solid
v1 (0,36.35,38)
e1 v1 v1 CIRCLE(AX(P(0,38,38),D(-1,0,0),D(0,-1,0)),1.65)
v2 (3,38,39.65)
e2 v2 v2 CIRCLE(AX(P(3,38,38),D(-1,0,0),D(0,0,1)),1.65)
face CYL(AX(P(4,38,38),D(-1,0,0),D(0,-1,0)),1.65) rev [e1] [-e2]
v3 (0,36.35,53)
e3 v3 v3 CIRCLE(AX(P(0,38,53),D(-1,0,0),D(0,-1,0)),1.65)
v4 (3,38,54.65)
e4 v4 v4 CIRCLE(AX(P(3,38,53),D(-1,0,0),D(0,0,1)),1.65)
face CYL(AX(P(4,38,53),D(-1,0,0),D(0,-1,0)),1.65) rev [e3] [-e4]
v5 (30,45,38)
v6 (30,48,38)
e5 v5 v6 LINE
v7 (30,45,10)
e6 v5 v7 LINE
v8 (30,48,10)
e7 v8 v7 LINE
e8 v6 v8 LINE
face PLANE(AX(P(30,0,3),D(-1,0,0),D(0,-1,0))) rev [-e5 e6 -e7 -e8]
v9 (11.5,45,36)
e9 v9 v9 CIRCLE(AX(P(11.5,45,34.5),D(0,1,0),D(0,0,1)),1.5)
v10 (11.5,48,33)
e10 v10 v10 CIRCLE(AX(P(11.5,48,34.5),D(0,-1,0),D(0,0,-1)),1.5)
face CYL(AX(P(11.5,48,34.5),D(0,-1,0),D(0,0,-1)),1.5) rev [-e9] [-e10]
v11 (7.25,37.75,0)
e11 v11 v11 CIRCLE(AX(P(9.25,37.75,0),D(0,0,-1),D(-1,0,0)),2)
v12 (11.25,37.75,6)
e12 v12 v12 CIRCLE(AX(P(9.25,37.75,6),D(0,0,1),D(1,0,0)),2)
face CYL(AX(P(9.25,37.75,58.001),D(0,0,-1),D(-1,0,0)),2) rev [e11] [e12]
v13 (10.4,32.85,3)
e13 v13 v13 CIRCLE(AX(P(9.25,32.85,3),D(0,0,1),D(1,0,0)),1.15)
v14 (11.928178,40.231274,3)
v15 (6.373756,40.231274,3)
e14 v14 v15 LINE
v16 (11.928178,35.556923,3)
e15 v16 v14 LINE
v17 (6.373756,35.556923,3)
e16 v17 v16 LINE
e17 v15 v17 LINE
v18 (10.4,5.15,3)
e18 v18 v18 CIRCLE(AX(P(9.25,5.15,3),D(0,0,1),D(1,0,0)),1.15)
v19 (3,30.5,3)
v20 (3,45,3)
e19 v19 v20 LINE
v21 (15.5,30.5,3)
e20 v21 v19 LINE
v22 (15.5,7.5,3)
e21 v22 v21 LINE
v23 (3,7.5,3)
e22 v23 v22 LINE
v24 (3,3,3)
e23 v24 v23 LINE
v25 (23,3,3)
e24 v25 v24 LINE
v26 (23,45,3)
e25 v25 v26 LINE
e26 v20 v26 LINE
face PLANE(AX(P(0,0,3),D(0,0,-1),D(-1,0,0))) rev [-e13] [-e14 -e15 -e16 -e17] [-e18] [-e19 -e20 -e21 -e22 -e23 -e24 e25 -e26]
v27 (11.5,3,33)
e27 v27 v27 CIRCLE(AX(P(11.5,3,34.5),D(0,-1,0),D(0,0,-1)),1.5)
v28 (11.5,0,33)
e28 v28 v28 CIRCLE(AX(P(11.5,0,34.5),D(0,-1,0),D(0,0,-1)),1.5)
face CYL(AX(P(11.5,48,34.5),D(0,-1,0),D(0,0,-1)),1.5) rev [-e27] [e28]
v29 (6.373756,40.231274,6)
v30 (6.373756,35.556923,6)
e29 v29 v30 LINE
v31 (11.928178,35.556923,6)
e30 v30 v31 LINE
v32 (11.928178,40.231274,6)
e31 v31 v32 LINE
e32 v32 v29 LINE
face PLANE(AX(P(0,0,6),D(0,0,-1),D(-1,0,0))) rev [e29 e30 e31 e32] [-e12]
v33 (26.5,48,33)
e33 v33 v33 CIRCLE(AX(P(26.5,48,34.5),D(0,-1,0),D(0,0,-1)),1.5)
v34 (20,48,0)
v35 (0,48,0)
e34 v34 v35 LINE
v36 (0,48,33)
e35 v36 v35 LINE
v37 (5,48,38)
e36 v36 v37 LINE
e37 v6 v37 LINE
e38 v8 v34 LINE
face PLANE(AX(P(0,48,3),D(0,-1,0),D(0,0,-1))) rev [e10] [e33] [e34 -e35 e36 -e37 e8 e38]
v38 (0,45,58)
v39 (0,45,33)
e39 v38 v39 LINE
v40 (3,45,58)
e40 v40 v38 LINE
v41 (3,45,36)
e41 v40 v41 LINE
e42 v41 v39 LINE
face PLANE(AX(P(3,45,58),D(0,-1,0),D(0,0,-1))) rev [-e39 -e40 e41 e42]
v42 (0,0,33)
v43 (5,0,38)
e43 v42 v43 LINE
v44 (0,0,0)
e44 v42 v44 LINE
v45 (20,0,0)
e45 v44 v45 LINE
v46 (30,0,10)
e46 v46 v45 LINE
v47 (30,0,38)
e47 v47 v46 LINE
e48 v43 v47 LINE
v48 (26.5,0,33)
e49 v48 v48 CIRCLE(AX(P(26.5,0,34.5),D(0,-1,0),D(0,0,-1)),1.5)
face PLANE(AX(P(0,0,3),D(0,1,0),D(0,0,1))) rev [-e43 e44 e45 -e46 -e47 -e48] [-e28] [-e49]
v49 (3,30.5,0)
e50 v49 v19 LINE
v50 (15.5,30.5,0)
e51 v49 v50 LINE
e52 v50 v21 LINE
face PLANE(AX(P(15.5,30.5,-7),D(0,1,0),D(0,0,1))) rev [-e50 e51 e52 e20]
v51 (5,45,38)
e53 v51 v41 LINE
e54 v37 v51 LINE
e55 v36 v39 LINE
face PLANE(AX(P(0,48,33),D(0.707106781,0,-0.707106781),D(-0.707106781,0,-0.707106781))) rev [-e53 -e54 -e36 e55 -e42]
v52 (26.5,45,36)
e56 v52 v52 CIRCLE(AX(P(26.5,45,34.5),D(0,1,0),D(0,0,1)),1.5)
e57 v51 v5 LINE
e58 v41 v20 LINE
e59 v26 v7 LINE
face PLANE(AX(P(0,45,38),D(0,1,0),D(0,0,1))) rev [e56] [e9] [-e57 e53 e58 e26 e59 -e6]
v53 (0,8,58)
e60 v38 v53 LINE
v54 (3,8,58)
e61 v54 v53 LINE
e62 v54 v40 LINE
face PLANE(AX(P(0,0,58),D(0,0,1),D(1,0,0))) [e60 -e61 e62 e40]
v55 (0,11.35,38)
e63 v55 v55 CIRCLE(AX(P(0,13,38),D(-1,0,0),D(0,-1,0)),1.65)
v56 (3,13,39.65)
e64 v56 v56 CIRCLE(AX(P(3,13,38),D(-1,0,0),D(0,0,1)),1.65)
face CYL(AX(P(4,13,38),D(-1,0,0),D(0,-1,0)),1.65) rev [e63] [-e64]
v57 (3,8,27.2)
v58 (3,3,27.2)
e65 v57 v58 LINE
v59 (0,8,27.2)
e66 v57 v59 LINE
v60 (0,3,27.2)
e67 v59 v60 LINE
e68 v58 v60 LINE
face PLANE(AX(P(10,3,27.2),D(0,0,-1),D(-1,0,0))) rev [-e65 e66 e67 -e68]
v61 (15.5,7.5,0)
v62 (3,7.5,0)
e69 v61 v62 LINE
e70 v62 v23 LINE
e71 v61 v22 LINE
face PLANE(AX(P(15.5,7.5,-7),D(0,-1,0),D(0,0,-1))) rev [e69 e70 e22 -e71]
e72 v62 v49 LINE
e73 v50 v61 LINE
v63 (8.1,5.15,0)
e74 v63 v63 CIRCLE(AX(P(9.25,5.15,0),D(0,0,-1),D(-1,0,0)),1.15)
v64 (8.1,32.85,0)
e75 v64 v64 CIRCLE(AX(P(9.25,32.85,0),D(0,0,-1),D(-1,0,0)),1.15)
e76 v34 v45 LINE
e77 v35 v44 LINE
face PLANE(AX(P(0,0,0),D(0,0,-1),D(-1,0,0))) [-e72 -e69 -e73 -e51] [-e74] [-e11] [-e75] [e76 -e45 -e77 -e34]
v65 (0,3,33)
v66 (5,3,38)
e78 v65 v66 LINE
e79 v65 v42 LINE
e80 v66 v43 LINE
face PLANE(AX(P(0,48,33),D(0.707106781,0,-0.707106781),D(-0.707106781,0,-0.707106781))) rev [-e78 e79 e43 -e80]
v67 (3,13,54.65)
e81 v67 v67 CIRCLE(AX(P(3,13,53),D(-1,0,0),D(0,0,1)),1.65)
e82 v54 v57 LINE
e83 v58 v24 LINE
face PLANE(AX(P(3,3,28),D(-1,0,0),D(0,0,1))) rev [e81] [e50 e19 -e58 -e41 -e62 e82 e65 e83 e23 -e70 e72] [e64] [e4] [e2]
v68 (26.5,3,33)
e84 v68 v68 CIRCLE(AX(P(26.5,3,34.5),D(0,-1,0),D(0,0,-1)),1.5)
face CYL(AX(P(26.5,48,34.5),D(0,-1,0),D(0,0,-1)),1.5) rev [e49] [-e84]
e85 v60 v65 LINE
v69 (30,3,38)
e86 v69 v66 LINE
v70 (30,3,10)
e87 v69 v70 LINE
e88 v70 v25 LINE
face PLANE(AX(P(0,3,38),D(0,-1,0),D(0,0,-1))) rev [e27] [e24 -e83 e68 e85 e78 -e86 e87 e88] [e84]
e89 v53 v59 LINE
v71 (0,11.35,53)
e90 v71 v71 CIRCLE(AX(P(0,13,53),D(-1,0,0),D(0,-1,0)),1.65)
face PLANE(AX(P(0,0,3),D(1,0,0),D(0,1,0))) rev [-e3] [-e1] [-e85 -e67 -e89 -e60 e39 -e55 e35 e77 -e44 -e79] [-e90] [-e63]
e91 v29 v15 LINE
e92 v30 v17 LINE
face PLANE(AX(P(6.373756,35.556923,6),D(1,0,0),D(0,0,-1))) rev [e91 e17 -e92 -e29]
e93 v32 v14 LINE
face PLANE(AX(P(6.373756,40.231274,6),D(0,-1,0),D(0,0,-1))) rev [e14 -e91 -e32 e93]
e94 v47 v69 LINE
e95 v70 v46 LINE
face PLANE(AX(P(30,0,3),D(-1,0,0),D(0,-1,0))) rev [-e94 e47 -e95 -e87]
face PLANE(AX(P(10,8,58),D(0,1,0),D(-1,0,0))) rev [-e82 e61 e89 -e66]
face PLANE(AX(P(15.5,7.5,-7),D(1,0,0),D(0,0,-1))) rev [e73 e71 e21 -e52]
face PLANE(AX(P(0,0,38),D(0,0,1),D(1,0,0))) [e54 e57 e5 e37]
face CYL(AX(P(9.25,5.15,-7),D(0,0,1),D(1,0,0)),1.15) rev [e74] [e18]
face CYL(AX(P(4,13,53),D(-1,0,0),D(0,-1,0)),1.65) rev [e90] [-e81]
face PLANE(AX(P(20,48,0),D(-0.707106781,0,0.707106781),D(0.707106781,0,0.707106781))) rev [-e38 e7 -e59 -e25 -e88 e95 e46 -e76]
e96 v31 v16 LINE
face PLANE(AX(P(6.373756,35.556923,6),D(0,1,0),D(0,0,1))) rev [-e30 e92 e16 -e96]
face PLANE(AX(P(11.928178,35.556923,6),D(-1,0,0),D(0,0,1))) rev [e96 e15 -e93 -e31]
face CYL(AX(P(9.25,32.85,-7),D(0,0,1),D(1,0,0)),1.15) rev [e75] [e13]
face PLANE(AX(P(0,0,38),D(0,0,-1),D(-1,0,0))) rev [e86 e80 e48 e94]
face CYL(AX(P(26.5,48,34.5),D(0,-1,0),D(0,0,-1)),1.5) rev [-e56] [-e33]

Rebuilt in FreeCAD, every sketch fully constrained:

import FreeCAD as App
import Part
import Sketcher

V = App.Vector
Q = App.Units.Quantity

doc = App.newDocument("Part")
body = doc.addObject("PartDesign::Body", "Body")

# Sketch on XY plane
sketch1 = body.newObject("Sketcher::SketchObject", "Sketch")
sketch1.AttachmentSupport = (doc.getObject("XY_Plane"), [""])
sketch1.MapMode = "FlatFace"
sketch1.addGeometry([
    Part.LineSegment(V(0, 48, 0), V(0, 0, 0)),
    Part.LineSegment(V(0, 0, 0), V(30, 0, 0)),
    Part.LineSegment(V(30, 0, 0), V(30, 48, 0)),
    Part.LineSegment(V(30, 48, 0), V(0, 48, 0)),
], False)
sketch1.addConstraint([
    Sketcher.Constraint("Coincident", 0, 2, 1, 1),
    Sketcher.Constraint("Coincident", 1, 2, 2, 1),
    Sketcher.Constraint("Coincident", 2, 2, 3, 1),
    Sketcher.Constraint("Coincident", 3, 2, 0, 1),
    Sketcher.Constraint("Vertical", 0),
    Sketcher.Constraint("Horizontal", 1),
    Sketcher.Constraint("Vertical", 2),
    Sketcher.Constraint("Horizontal", 3),
    Sketcher.Constraint("Coincident", 0, 2, -1, 1),
    Sketcher.Constraint("DistanceX", 1, 1, 1, 2, Q("30 mm")),
    Sketcher.Constraint("DistanceY", 0, 2, 0, 1, Q("48 mm")),
])
pad1 = body.newObject("PartDesign::Pad", "Pad")
pad1.Profile = sketch1
pad1.Length = 3

# Sketch on XY plane
sketch2 = body.newObject("Sketcher::SketchObject", "Sketch001")
sketch2.AttachmentSupport = (doc.getObject("XY_Plane"), [""])
sketch2.MapMode = "FlatFace"
sketch2.AttachmentOffset = App.Placement(V(0, 0, 3), App.Rotation())
sketch2.addGeometry([
    Part.LineSegment(V(0, 48, 0), V(0, 45, 0)),  # 0
    Part.LineSegment(V(0, 45, 0), V(30, 45, 0)),  # 1
    Part.LineSegment(V(30, 45, 0), V(30, 48, 0)),  # 2
    Part.LineSegment(V(30, 48, 0), V(0, 48, 0)),  # 3
    Part.LineSegment(V(0, 3, 0), V(0, 0, 0)),  # 4
    Part.LineSegment(V(0, 0, 0), V(30, 0, 0)),  # 5
    Part.LineSegment(V(30, 0, 0), V(30, 3, 0)),  # 6
    Part.LineSegment(V(30, 3, 0), V(0, 3, 0)),  # 7
], False)
sketch2.addConstraint([
    Sketcher.Constraint("Coincident", 0, 2, 1, 1),
    Sketcher.Constraint("Coincident", 1, 2, 2, 1),
    Sketcher.Constraint("Coincident", 2, 2, 3, 1),
    Sketcher.Constraint("Coincident", 3, 2, 0, 1),
    Sketcher.Constraint("Coincident", 4, 2, 5, 1),
    Sketcher.Constraint("Coincident", 5, 2, 6, 1),
    Sketcher.Constraint("Coincident", 6, 2, 7, 1),
    Sketcher.Constraint("Coincident", 7, 2, 4, 1),
    Sketcher.Constraint("Vertical", 0),
    Sketcher.Constraint("Horizontal", 1),
    Sketcher.Constraint("Vertical", 2),
    Sketcher.Constraint("Horizontal", 3),
    Sketcher.Constraint("Vertical", 4),
    Sketcher.Constraint("Horizontal", 5),
    Sketcher.Constraint("Vertical", 6),
    Sketcher.Constraint("Horizontal", 7),
    Sketcher.Constraint("Coincident", 4, 2, -1, 1),
    Sketcher.Constraint("PointOnObject", 0, 2, -2),
    Sketcher.Constraint("Vertical", 2, 2, 5, 2),
    Sketcher.Constraint("Equal", 2, 4),
    Sketcher.Constraint("DistanceX", 1, 1, 1, 2, Q("30 mm")),
    Sketcher.Constraint("DistanceY", 0, 2, 0, 1, Q("3 mm")),
    Sketcher.Constraint("DistanceY", -1, 1, 0, 2, Q("45 mm")),
])
pad2 = body.newObject("PartDesign::Pad", "Pad001")
pad2.Profile = sketch2
pad2.Length = 35

# Sketch on XZ plane
sketch3 = body.newObject("Sketcher::SketchObject", "Sketch002")
sketch3.AttachmentSupport = (doc.getObject("XZ_Plane"), [""])
sketch3.MapMode = "FlatFace"
sketch3.addGeometry([
    Part.LineSegment(V(0, 33, 0), V(5, 38, 0)),
    Part.LineSegment(V(5, 38, 0), V(0, 38, 0)),
    Part.LineSegment(V(0, 38, 0), V(0, 33, 0)),
], False)
sketch3.addConstraint([
    Sketcher.Constraint("Coincident", 0, 2, 1, 1),
    Sketcher.Constraint("Coincident", 1, 2, 2, 1),
    Sketcher.Constraint("Coincident", 2, 2, 0, 1),
    Sketcher.Constraint("Horizontal", 1),
    Sketcher.Constraint("Vertical", 2),
    Sketcher.Constraint("PointOnObject", 1, 2, -2),
    Sketcher.Constraint("Equal", 1, 2),
    Sketcher.Constraint("DistanceX", 1, 2, 1, 1, Q("5 mm")),
    Sketcher.Constraint("DistanceY", -1, 1, 0, 2, Q("38 mm")),
])
pocket1 = body.newObject("PartDesign::Pocket", "Pocket")
pocket1.Profile = sketch3
pocket1.Type = "ThroughAll"

# Sketch on XZ plane
sketch4 = body.newObject("Sketcher::SketchObject", "Sketch003")
sketch4.AttachmentSupport = (doc.getObject("XZ_Plane"), [""])
sketch4.MapMode = "FlatFace"
sketch4.addGeometry([
    Part.LineSegment(V(30, 10, 0), V(20, 0, 0)),
    Part.LineSegment(V(20, 0, 0), V(30, 0, 0)),
    Part.LineSegment(V(30, 0, 0), V(30, 10, 0)),
], False)
sketch4.addConstraint([
    Sketcher.Constraint("Coincident", 0, 2, 1, 1),
    Sketcher.Constraint("Coincident", 1, 2, 2, 1),
    Sketcher.Constraint("Coincident", 2, 2, 0, 1),
    Sketcher.Constraint("Horizontal", 1),
    Sketcher.Constraint("Vertical", 2),
    Sketcher.Constraint("PointOnObject", 0, 2, -1),
    Sketcher.Constraint("Equal", 1, 2),
    Sketcher.Constraint("DistanceX", 1, 1, 1, 2, Q("10 mm")),
    Sketcher.Constraint("DistanceX", -1, 1, 0, 2, Q("20 mm")),
])
pocket2 = body.newObject("PartDesign::Pocket", "Pocket001")
pocket2.Profile = sketch4
pocket2.Type = "ThroughAll"

# Sketch on XY plane
sketch5 = body.newObject("Sketcher::SketchObject", "Sketch004")
sketch5.AttachmentSupport = (doc.getObject("XY_Plane"), [""])
sketch5.MapMode = "FlatFace"
sketch5.AttachmentOffset = App.Placement(V(0, 0, 3), App.Rotation())
sketch5.addGeometry([
    Part.LineSegment(V(0, 45, 0), V(0, 3, 0)),
    Part.LineSegment(V(0, 3, 0), V(3, 3, 0)),
    Part.LineSegment(V(3, 3, 0), V(3, 45, 0)),
    Part.LineSegment(V(3, 45, 0), V(0, 45, 0)),
], False)
sketch5.addConstraint([
    Sketcher.Constraint("Coincident", 0, 2, 1, 1),
    Sketcher.Constraint("Coincident", 1, 2, 2, 1),
    Sketcher.Constraint("Coincident", 2, 2, 3, 1),
    Sketcher.Constraint("Coincident", 3, 2, 0, 1),
    Sketcher.Constraint("Vertical", 0),
    Sketcher.Constraint("Horizontal", 1),
    Sketcher.Constraint("Vertical", 2),
    Sketcher.Constraint("Horizontal", 3),
    Sketcher.Constraint("PointOnObject", 0, 2, -2),
    Sketcher.Constraint("DistanceX", 1, 1, 1, 2, Q("3 mm")),
    Sketcher.Constraint("DistanceY", 0, 2, 0, 1, Q("42 mm")),
    Sketcher.Constraint("DistanceY", -1, 1, 0, 2, Q("3 mm")),
])
pad3 = body.newObject("PartDesign::Pad", "Pad002")
pad3.Profile = sketch5
pad3.Length = 25

# Sketch on XY plane
sketch6 = body.newObject("Sketcher::SketchObject", "Sketch005")
sketch6.AttachmentSupport = (doc.getObject("XY_Plane"), [""])
sketch6.MapMode = "FlatFace"
sketch6.AttachmentOffset = App.Placement(V(0, 0, 28), App.Rotation())
sketch6.addGeometry([
    Part.LineSegment(V(0, 45, 0), V(0, 3, 0)),
    Part.LineSegment(V(0, 3, 0), V(3, 3, 0)),
    Part.LineSegment(V(3, 3, 0), V(3, 45, 0)),
    Part.LineSegment(V(3, 45, 0), V(0, 45, 0)),
], False)
sketch6.addConstraint([
    Sketcher.Constraint("Coincident", 0, 2, 1, 1),
    Sketcher.Constraint("Coincident", 1, 2, 2, 1),
    Sketcher.Constraint("Coincident", 2, 2, 3, 1),
    Sketcher.Constraint("Coincident", 3, 2, 0, 1),
    Sketcher.Constraint("Vertical", 0),
    Sketcher.Constraint("Horizontal", 1),
    Sketcher.Constraint("Vertical", 2),
    Sketcher.Constraint("Horizontal", 3),
    Sketcher.Constraint("PointOnObject", 0, 2, -2),
    Sketcher.Constraint("DistanceX", 1, 1, 1, 2, Q("3 mm")),
    Sketcher.Constraint("DistanceY", 0, 2, 0, 1, Q("42 mm")),
    Sketcher.Constraint("DistanceY", -1, 1, 0, 2, Q("3 mm")),
])
pad4 = body.newObject("PartDesign::Pad", "Pad003")
pad4.Profile = sketch6
pad4.Length = 30

# Sketch on YZ plane
sketch7 = body.newObject("Sketcher::SketchObject", "Sketch006")
sketch7.AttachmentSupport = (doc.getObject("YZ_Plane"), [""])
sketch7.MapMode = "FlatFace"
sketch7.addGeometry([
    Part.Circle(V(13, 38, 0), V(0, 0, 1), 1.6),
    Part.Circle(V(38, 38, 0), V(0, 0, 1), 1.6),
    Part.Circle(V(38, 53, 0), V(0, 0, 1), 1.6),
    Part.Circle(V(13, 53, 0), V(0, 0, 1), 1.6),
], False)
sketch7.addConstraint([
    Sketcher.Constraint("Equal", 0, 1),
    Sketcher.Constraint("Equal", 1, 2),
    Sketcher.Constraint("Equal", 2, 3),
    Sketcher.Constraint("Horizontal", 0, 3, 1, 3),
    Sketcher.Constraint("Horizontal", 2, 3, 3, 3),
    Sketcher.Constraint("Vertical", 1, 3, 2, 3),
    Sketcher.Constraint("Vertical", 0, 3, 3, 3),
    Sketcher.Constraint("Diameter", 0, Q("3.3 mm")),
    Sketcher.Constraint("DistanceX", -1, 1, 0, 3, Q("13 mm")),
    Sketcher.Constraint("DistanceY", -1, 1, 0, 3, Q("38 mm")),
    Sketcher.Constraint("DistanceX", -1, 1, 1, 3, Q("38 mm")),
    Sketcher.Constraint("DistanceY", -1, 1, 2, 3, Q("53 mm")),
])
pocket3 = body.newObject("PartDesign::Pocket", "Pocket002")
pocket3.Profile = sketch7
pocket3.Length = 4
pocket3.Reversed = True

# Sketch on XY plane
sketch8 = body.newObject("Sketcher::SketchObject", "Sketch007")
sketch8.AttachmentSupport = (doc.getObject("XY_Plane"), [""])
sketch8.MapMode = "FlatFace"
sketch8.AttachmentOffset = App.Placement(V(0, 0, 3), App.Rotation())
sketch8.addGeometry([
    Part.Circle(V(9.2, 32.9, 0), V(0, 0, 1), 1.1),  # 0
    Part.Circle(V(9.2, 5.2, 0), V(0, 0, 1), 1.1),  # 1
    Part.LineSegment(V(3, 30.5, 0), V(3, 7.5, 0)),  # 2
    Part.LineSegment(V(3, 7.5, 0), V(15.5, 7.5, 0)),  # 3
    Part.LineSegment(V(15.5, 7.5, 0), V(15.5, 30.5, 0)),  # 4
    Part.LineSegment(V(15.5, 30.5, 0), V(3, 30.5, 0)),  # 5
], False)
sketch8.addConstraint([
    Sketcher.Constraint("Coincident", 2, 2, 3, 1),
    Sketcher.Constraint("Coincident", 3, 2, 4, 1),
    Sketcher.Constraint("Coincident", 4, 2, 5, 1),
    Sketcher.Constraint("Coincident", 5, 2, 2, 1),
    Sketcher.Constraint("Vertical", 2),
    Sketcher.Constraint("Horizontal", 3),
    Sketcher.Constraint("Vertical", 4),
    Sketcher.Constraint("Horizontal", 5),
    Sketcher.Constraint("Equal", 0, 1),
    Sketcher.Constraint("Vertical", 0, 3, 1, 3),
    Sketcher.Constraint("Diameter", 0, Q("2.3 mm")),
    Sketcher.Constraint("DistanceY", 2, 2, 2, 1, Q("23 mm")),
    Sketcher.Constraint("DistanceX", 3, 1, 3, 2, Q("12.5 mm")),
    Sketcher.Constraint("DistanceX", -1, 1, 2, 2, Q("3 mm")),
    Sketcher.Constraint("DistanceY", -1, 1, 2, 2, Q("7.5 mm")),
    Sketcher.Constraint("DistanceY", 1, 3, 0, 3, Q("27.7 mm")),
    Sketcher.Constraint("DistanceX", -1, 1, 0, 3, Q("9.25 mm")),
    Sketcher.Constraint("DistanceY", -1, 1, 0, 3, Q("32.85 mm")),
])
pocket4 = body.newObject("PartDesign::Pocket", "Pocket003")
pocket4.Profile = sketch8
pocket4.Length = 10

# Sketch on YZ plane
sketch9 = body.newObject("Sketcher::SketchObject", "Sketch008")
sketch9.AttachmentSupport = (doc.getObject("YZ_Plane"), [""])
sketch9.MapMode = "FlatFace"
sketch9.addGeometry([
    Part.LineSegment(V(8, 27, 0), V(3, 27, 0)),
    Part.LineSegment(V(3, 27, 0), V(3, 58, 0)),
    Part.LineSegment(V(3, 58, 0), V(8, 58, 0)),
    Part.LineSegment(V(8, 58, 0), V(8, 27, 0)),
], False)
sketch9.addConstraint([
    Sketcher.Constraint("Coincident", 0, 2, 1, 1),
    Sketcher.Constraint("Coincident", 1, 2, 2, 1),
    Sketcher.Constraint("Coincident", 2, 2, 3, 1),
    Sketcher.Constraint("Coincident", 3, 2, 0, 1),
    Sketcher.Constraint("Horizontal", 0),
    Sketcher.Constraint("Vertical", 1),
    Sketcher.Constraint("Horizontal", 2),
    Sketcher.Constraint("Vertical", 3),
    Sketcher.Constraint("DistanceX", 0, 2, 0, 1, Q("5 mm")),
    Sketcher.Constraint("DistanceY", 1, 1, 1, 2, Q("30.8 mm")),
    Sketcher.Constraint("DistanceX", -1, 1, 0, 2, Q("3 mm")),
    Sketcher.Constraint("DistanceY", -1, 1, 1, 2, Q("58 mm")),
])
pocket5 = body.newObject("PartDesign::Pocket", "Pocket004")
pocket5.Profile = sketch9
pocket5.Length = 10
pocket5.Reversed = True

# Sketch on XZ plane
sketch10 = body.newObject("Sketcher::SketchObject", "Sketch009")
sketch10.AttachmentSupport = (doc.getObject("XZ_Plane"), [""])
sketch10.MapMode = "FlatFace"
sketch10.addGeometry([
    Part.Circle(V(26.5, 34.5, 0), V(0, 0, 1), 1.5),
    Part.Circle(V(11.5, 34.5, 0), V(0, 0, 1), 1.5),
], False)
sketch10.addConstraint([
    Sketcher.Constraint("Equal", 0, 1),
    Sketcher.Constraint("Horizontal", 0, 3, 1, 3),
    Sketcher.Constraint("Diameter", 0, Q("3 mm")),
    Sketcher.Constraint("DistanceX", 1, 3, 0, 3, Q("15 mm")),
    Sketcher.Constraint("DistanceX", -1, 1, 0, 3, Q("26.5 mm")),
    Sketcher.Constraint("DistanceY", -1, 1, 0, 3, Q("34.5 mm")),
])
pocket6 = body.newObject("PartDesign::Pocket", "Pocket005")
pocket6.Profile = sketch10
pocket6.Type = "ThroughAll"

# Sketch on XY plane
sketch11 = body.newObject("Sketcher::SketchObject", "Sketch010")
sketch11.AttachmentSupport = (doc.getObject("XY_Plane"), [""])
sketch11.MapMode = "FlatFace"
sketch11.addGeometry(Part.Circle(V(9.2, 37.8, 0), V(0, 0, 1), 2), False)
sketch11.addConstraint([
    Sketcher.Constraint("Diameter", 0, Q("4 mm")),
    Sketcher.Constraint("DistanceX", -1, 1, 0, 3, Q("9.25 mm")),
    Sketcher.Constraint("DistanceY", -1, 1, 0, 3, Q("37.75 mm")),
])
pocket7 = body.newObject("PartDesign::Pocket", "Pocket006")
pocket7.Profile = sketch11
pocket7.Type = "UpToFirst"
pocket7.Reversed = True

# Sketch on XY plane
sketch12 = body.newObject("Sketcher::SketchObject", "Sketch011")
sketch12.AttachmentSupport = (doc.getObject("XY_Plane"), [""])
sketch12.MapMode = "FlatFace"
sketch12.AttachmentOffset = App.Placement(V(0, 0, 3), App.Rotation())
sketch12.addGeometry([
    Part.LineSegment(V(6.4, 40.2, 0), V(6.4, 35.6, 0)),  # 0
    Part.LineSegment(V(6.4, 35.6, 0), V(11.9, 35.6, 0)),  # 1
    Part.LineSegment(V(11.9, 35.6, 0), V(11.9, 40.2, 0)),  # 2
    Part.LineSegment(V(11.9, 40.2, 0), V(6.4, 40.2, 0)),  # 3
    Part.Circle(V(9.2, 37.8, 0), V(0, 0, 1), 2),  # 4
], False)
sketch12.addConstraint([
    Sketcher.Constraint("Coincident", 0, 2, 1, 1),
    Sketcher.Constraint("Coincident", 1, 2, 2, 1),
    Sketcher.Constraint("Coincident", 2, 2, 3, 1),
    Sketcher.Constraint("Coincident", 3, 2, 0, 1),
    Sketcher.Constraint("Vertical", 0),
    Sketcher.Constraint("Horizontal", 1),
    Sketcher.Constraint("Vertical", 2),
    Sketcher.Constraint("Horizontal", 3),
    Sketcher.Constraint("Diameter", 4, Q("4 mm")),
    Sketcher.Constraint("DistanceX", -1, 1, 4, 3, Q("9.25 mm")),
    Sketcher.Constraint("DistanceY", -1, 1, 4, 3, Q("37.75 mm")),
    Sketcher.Constraint("DistanceX", 1, 1, 1, 2, Q("5.554422 mm")),
    Sketcher.Constraint("DistanceY", 0, 2, 0, 1, Q("4.674351 mm")),
    Sketcher.Constraint("DistanceX", -1, 1, 0, 2, Q("6.373756 mm")),
    Sketcher.Constraint("DistanceY", -1, 1, 0, 2, Q("35.556923 mm")),
])
pad5 = body.newObject("PartDesign::Pad", "Pad004")
pad5.Profile = sketch12
pad5.Length = 3

doc.recompute()
